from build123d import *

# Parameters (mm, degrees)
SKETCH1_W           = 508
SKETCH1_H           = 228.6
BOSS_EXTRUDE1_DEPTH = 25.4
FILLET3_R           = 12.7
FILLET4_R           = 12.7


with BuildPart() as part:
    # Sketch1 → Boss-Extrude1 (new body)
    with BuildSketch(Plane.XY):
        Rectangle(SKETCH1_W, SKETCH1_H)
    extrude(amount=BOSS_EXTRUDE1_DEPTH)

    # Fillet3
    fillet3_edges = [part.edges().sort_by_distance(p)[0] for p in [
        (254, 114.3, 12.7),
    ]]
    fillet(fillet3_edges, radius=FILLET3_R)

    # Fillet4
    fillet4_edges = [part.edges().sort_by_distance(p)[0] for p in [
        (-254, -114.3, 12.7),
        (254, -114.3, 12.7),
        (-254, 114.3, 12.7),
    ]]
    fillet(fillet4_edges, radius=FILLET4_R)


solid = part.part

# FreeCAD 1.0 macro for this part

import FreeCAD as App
import Part
import Sketcher
from FreeCAD import Vector
Q = App.Units.Quantity


def edges_at(feature, points):
    """Names of the edges that pass closest to the given points."""
    edges = feature.Shape.Edges
    near = lambda p: min(range(len(edges)), key=lambda i: edges[i].distToShape(Part.Vertex(*p))[0])
    return sorted({f"Edge{near(p) + 1}" for p in points})


def add_polygon(sketch, points):
    """Adds a closed chain of lines whose ends are joined by coincident constraints."""
    first, n = sketch.GeometryCount, len(points)
    for a, b in zip(points, points[1:] + points[:1]):
        sketch.addGeometry(Part.LineSegment(App.Vector(*a, 0), App.Vector(*b, 0)), False)
    for i in range(n):
        sketch.addConstraint(Sketcher.Constraint("Coincident", first + i, 2, first + (i + 1) % n, 1))

doc = App.newDocument("Part")
params = doc.addObject("Spreadsheet::Sheet", "Params")
for row, (alias, value) in enumerate([
    ("sketch1_width", "20 in"),
    ("sketch1_height", "9 in"),
    ("pad1_length", "1 in"),
    ("fillet_radius", "0.5 in"),
    ("fillet2_radius", "0.5 in"),
], start=1):
    params.set(f"A{row}", alias)
    params.set(f"B{row}", "=" + value)
    params.setAlias(f"B{row}", alias)

body = doc.addObject("PartDesign::Body", "Body")

sketch1 = doc.addObject("Sketcher::SketchObject", "Sketch")
body.addObject(sketch1)
sketch1.AttachmentSupport = (doc.XY_Plane, [""])
sketch1.MapMode = "FlatFace"
add_polygon(sketch1, [(-254, 114.3), (-254, -114.3), (254, -114.3), (254, 114.3)])
sketch1.addConstraint([
    Sketcher.Constraint("Vertical", 0),
    Sketcher.Constraint("Horizontal", 1),
    Sketcher.Constraint("Vertical", 2),
    Sketcher.Constraint("Horizontal", 3),
    Sketcher.Constraint("Symmetric", 0, 2, 2, 2, -1, 1),
    Sketcher.Constraint("DistanceX", 1, 1, 1, 2, Q("20 in")),
    Sketcher.Constraint("DistanceY", 0, 2, 0, 1, Q("9 in")),
])
sketch1.setExpression("Constraints[9]", "Params.sketch1_width")
sketch1.setExpression("Constraints[10]", "Params.sketch1_height")
pad1 = doc.addObject("PartDesign::Pad", "Pad")
body.addObject(pad1)
pad1.Profile = sketch1
pad1.setExpression("Length", "Params.pad1_length")
doc.recompute()

fillet = doc.addObject("PartDesign::Fillet", "Fillet")
body.addObject(fillet)
fillet.Base = (pad1, edges_at(pad1, [(254, 114.3, 12.7)]))
fillet.setExpression("Radius", "Params.fillet_radius")
doc.recompute()

fillet2 = doc.addObject("PartDesign::Fillet", "Fillet001")
body.addObject(fillet2)
fillet2.Base = (fillet, edges_at(fillet, [(-254, -114.3, 12.7), (254, -114.3, 12.7), (-254, 114.3, 12.7)]))
fillet2.setExpression("Radius", "Params.fillet2_radius")

doc.recompute()
